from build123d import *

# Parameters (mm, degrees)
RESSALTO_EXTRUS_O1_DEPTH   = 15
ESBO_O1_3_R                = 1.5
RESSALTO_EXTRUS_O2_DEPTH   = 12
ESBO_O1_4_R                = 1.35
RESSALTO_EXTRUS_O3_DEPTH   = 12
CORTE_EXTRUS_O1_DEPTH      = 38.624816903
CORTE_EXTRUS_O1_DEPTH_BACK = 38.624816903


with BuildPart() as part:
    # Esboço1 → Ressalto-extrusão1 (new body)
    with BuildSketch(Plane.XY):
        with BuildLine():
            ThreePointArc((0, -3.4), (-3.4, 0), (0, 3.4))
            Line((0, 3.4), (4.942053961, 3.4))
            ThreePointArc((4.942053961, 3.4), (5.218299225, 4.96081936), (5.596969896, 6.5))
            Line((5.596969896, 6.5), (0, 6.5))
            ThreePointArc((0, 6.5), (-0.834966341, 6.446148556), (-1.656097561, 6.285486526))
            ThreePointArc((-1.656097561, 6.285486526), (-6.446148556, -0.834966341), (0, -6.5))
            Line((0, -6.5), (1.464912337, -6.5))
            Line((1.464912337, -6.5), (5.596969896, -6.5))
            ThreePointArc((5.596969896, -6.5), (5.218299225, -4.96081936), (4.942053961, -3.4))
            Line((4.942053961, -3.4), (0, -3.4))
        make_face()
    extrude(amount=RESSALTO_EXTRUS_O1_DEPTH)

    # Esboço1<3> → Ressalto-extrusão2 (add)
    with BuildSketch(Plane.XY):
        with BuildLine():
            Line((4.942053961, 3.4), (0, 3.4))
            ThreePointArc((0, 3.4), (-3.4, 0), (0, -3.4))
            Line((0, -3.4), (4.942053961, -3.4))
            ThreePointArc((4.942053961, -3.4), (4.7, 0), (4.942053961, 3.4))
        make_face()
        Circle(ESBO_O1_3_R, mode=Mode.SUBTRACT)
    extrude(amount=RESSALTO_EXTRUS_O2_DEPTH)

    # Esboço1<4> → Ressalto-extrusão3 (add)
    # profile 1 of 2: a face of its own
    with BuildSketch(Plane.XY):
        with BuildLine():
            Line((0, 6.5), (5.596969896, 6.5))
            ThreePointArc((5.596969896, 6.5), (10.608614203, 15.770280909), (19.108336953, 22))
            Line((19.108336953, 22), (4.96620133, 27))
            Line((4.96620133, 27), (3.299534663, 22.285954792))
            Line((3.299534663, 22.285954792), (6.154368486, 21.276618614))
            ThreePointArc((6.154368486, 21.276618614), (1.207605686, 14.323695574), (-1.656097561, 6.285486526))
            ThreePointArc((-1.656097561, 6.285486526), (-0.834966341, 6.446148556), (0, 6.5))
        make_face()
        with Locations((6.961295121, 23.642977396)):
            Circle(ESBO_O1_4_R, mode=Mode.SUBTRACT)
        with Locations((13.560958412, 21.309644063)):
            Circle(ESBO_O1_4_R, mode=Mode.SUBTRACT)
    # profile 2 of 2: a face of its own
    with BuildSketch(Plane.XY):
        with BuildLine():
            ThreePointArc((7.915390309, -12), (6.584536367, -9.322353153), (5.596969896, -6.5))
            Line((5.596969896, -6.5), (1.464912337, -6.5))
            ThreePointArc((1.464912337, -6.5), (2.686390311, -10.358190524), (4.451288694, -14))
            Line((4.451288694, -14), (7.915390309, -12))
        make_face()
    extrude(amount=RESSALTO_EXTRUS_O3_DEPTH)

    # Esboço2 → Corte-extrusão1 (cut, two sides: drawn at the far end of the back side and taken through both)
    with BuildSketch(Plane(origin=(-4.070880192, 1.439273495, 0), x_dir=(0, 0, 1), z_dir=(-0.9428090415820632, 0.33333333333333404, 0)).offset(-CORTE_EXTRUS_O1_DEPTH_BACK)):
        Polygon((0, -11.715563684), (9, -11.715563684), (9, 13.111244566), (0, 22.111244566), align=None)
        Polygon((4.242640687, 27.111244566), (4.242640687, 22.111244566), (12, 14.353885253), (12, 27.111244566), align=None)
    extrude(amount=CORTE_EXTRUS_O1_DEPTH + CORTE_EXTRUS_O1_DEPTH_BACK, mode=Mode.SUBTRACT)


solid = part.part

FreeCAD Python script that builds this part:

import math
import FreeCAD as App
import Part
import Sketcher
from FreeCAD import Vector
Q = App.Units.Quantity


def add_polygon(sketch, points):
    """Adds a closed chain of lines whose ends are joined by coincident constraints."""
    first, n = sketch.GeometryCount, len(points)
    for a, b in zip(points, points[1:] + points[:1]):
        sketch.addGeometry(Part.LineSegment(App.Vector(*a, 0), App.Vector(*b, 0)), False)
    for i in range(n):
        sketch.addConstraint(Sketcher.Constraint("Coincident", first + i, 2, first + (i + 1) % n, 1))

doc = App.newDocument("Part")
params = doc.addObject("Spreadsheet::Sheet", "Params")
for row, (alias, value) in enumerate([
    ("sketch1_radius", "24 mm"),
    ("sketch1_radius2", "3.4 mm"),
    ("sketch1_radius3", "6.5 mm"),
    ("pad1_length", "15 mm"),
    ("sketch2_diameter", "3 mm"),
    ("sketch2_radius", "24 mm"),
    ("sketch2_radius2", "3.4 mm"),
    ("pad2_length", "12 mm"),
    ("sketch3_radius", "24 mm"),
    ("sketch3_radius2", "31 mm"),
    ("sketch3_radius3", "28 mm"),
    ("sketch3_diameter", "2.7 mm"),
    ("sketch3_radius4", "6.5 mm"),
    ("pad3_length", "12 mm"),
    ("sketch4_width", "9 mm"),
    ("sketch4_height", "5 mm"),
], start=1):
    params.set(f"A{row}", alias)
    params.set(f"B{row}", "=" + value)
    params.setAlias(f"B{row}", alias)

body = doc.addObject("PartDesign::Body", "Body")

sketch1 = body.newObject("Sketcher::SketchObject", "Sketch")
sketch1.AttachmentSupport = (doc.getObject("XY_Plane"), [""])
sketch1.MapMode = "FlatFace"
sketch1.addGeometry([
    Part.ArcOfCircle(Part.Circle(Vector(0, 0, 0), Vector(0, 0, 1), 3.4), math.radians(90), math.radians(270)),
    Part.LineSegment(Vector(0, 3.4, 0), Vector(4.9, 3.4, 0)),
    Part.ArcOfCircle(Part.Circle(Vector(28.7, 0, 0), Vector(0, 0, 1), 24), math.radians(164.29), math.radians(171.86)),
    Part.LineSegment(Vector(5.6, 6.5, 0), Vector(0, 6.5, 0)),
    Part.ArcOfCircle(Part.Circle(Vector(0, 0, 0), Vector(0, 0, 1), 6.5), math.radians(90), math.radians(104.76)),
    Part.ArcOfCircle(Part.Circle(Vector(0, 0, 0), Vector(0, 0, 1), 6.5), math.radians(105), math.radians(270)),
    Part.LineSegment(Vector(0, -6.5, 0), Vector(5.6, -6.5, 0)),
    Part.ArcOfCircle(Part.Circle(Vector(28.7, 0, 0), Vector(0, 0, 1), 24), math.radians(-171.86), math.radians(-164.29)),
    Part.LineSegment(Vector(4.9, -3.4, 0), Vector(0, -3.4, 0)),
], False)
sketch1.addConstraint([
    Sketcher.Constraint("Tangent", 0, 1, 1, 1),
    Sketcher.Constraint("Coincident", 1, 2, 2, 2),
    Sketcher.Constraint("Coincident", 2, 1, 3, 1),
    Sketcher.Constraint("Tangent", 3, 2, 4, 1),
    Sketcher.Constraint("Tangent", 4, 2, 5, 1),
    Sketcher.Constraint("Tangent", 5, 2, 6, 1),
    Sketcher.Constraint("Coincident", 6, 2, 7, 2),
    Sketcher.Constraint("Coincident", 7, 1, 8, 1),
    Sketcher.Constraint("Tangent", 8, 2, 0, 2),
    Sketcher.Constraint("Horizontal", 1),
    Sketcher.Constraint("Horizontal", 3),
    Sketcher.Constraint("Horizontal", 6),
    Sketcher.Constraint("Horizontal", 8),
    Sketcher.Constraint("Coincident", 0, 3, -1, 1),
    Sketcher.Constraint("Coincident", 4, 3, -1, 1),
    Sketcher.Constraint("Coincident", 7, 3, 2, 3),
    Sketcher.Constraint("Equal", 4, 5),
    Sketcher.Constraint("Equal", 2, 7),
    Sketcher.Constraint("PointOnObject", 2, 3, -1),
    Sketcher.Constraint("Radius", 2, 24.0),
    Sketcher.Constraint("Radius", 0, 3.4),
    Sketcher.Constraint("Radius", 4, 6.5),
    Sketcher.Constraint("DistanceX", -1, 1, 2, 3, 28.7),
    Sketcher.Constraint("DistanceX", 4, 2, -1, 1, 1.656098),
])
sketch1.setExpression("Constraints[19]", "Params.sketch1_radius")
sketch1.setExpression("Constraints[20]", "Params.sketch1_radius2")
sketch1.setExpression("Constraints[21]", "Params.sketch1_radius3")
pad1 = body.newObject("PartDesign::Pad", "Pad")
pad1.Profile = sketch1
pad1.setExpression("Length", "Params.pad1_length")

sketch2 = body.newObject("Sketcher::SketchObject", "Sketch001")
sketch2.AttachmentSupport = (doc.getObject("XY_Plane"), [""])
sketch2.MapMode = "FlatFace"
sketch2.addGeometry([
    Part.LineSegment(Vector(4.9, 3.4, 0), Vector(0, 3.4, 0)),
    Part.ArcOfCircle(Part.Circle(Vector(0, 0, 0), Vector(0, 0, 1), 3.4), math.radians(90), math.radians(270)),
    Part.LineSegment(Vector(0, -3.4, 0), Vector(4.9, -3.4, 0)),
    Part.ArcOfCircle(Part.Circle(Vector(28.7, 0, 0), Vector(0, 0, 1), 24), math.radians(171.86), math.radians(188.14)),
    Part.Circle(Vector(0, 0, 0), Vector(0, 0, 1), 1.5),
], False)
sketch2.addConstraint([
    Sketcher.Constraint("Tangent", 0, 2, 1, 1),
    Sketcher.Constraint("Tangent", 1, 2, 2, 1),
    Sketcher.Constraint("Coincident", 2, 2, 3, 2),
    Sketcher.Constraint("Coincident", 3, 1, 0, 1),
    Sketcher.Constraint("Horizontal", 0),
    Sketcher.Constraint("Horizontal", 2),
    Sketcher.Constraint("Coincident", 1, 3, -1, 1),
    Sketcher.Constraint("Coincident", 4, 3, -1, 1),
    Sketcher.Constraint("PointOnObject", 3, 3, -1),
    Sketcher.Constraint("Diameter", 4, 3.0),
    Sketcher.Constraint("Radius", 3, 24.0),
    Sketcher.Constraint("Radius", 1, 3.4),
    Sketcher.Constraint("DistanceX", -1, 1, 3, 3, 28.7),
])
sketch2.setExpression("Constraints[9]", "Params.sketch2_diameter")
sketch2.setExpression("Constraints[10]", "Params.sketch2_radius")
sketch2.setExpression("Constraints[11]", "Params.sketch2_radius2")
pad2 = body.newObject("PartDesign::Pad", "Pad001")
pad2.Profile = sketch2
pad2.setExpression("Length", "Params.pad2_length")

sketch3 = body.newObject("Sketcher::SketchObject", "Sketch002")
sketch3.AttachmentSupport = (doc.getObject("XY_Plane"), [""])
sketch3.MapMode = "FlatFace"
sketch3.addGeometry([
    Part.LineSegment(Vector(0, 6.5, 0), Vector(5.6, 6.5, 0)),
    Part.ArcOfCircle(Part.Circle(Vector(28.7, 0, 0), Vector(0, 0, 1), 24), math.radians(114), math.radians(164)),
    Part.LineSegment(Vector(19.1, 22, 0), Vector(5, 27, 0)),
    Part.LineSegment(Vector(5, 27, 0), Vector(3.3, 22.3, 0)),
    Part.LineSegment(Vector(3.3, 22.3, 0), Vector(6.2, 21.3, 0)),
    Part.ArcOfCircle(Part.Circle(Vector(28.7, 0, 0), Vector(0, 0, 1), 31), math.radians(137), math.radians(168)),
    Part.ArcOfCircle(Part.Circle(Vector(0, 0, 0), Vector(0, 0, 1), 6.5), math.radians(90), math.radians(104.76)),
    Part.Circle(Vector(13.6, 21.3, 0), Vector(0, 0, 1), 1.4),
    Part.Circle(Vector(7, 23.6, 0), Vector(0, 0, 1), 1.4),
    Part.ArcOfCircle(Part.Circle(Vector(28.7, 0, 0), Vector(0, 0, 1), 24), math.radians(-164.29), math.radians(-150)),
    Part.LineSegment(Vector(5.6, -6.5, 0), Vector(1.5, -6.5, 0)),
    Part.ArcOfCircle(Part.Circle(Vector(28.7, 0, 0), Vector(0, 0, 1), 28), math.radians(-166.58), math.radians(-150)),
    Part.LineSegment(Vector(4.5, -14, 0), Vector(7.9, -12, 0)),
], False)
sketch3.addConstraint([
    Sketcher.Constraint("Coincident", 0, 2, 1, 2),
    Sketcher.Constraint("Coincident", 1, 1, 2, 1),
    Sketcher.Constraint("Coincident", 2, 2, 3, 1),
    Sketcher.Constraint("Coincident", 3, 2, 4, 1),
    Sketcher.Constraint("Coincident", 4, 2, 5, 1),
    Sketcher.Constraint("Coincident", 5, 2, 6, 2),
    Sketcher.Constraint("Tangent", 6, 1, 0, 1),
    Sketcher.Constraint("Coincident", 9, 1, 10, 1),
    Sketcher.Constraint("Coincident", 10, 2, 11, 1),
    Sketcher.Constraint("Coincident", 11, 2, 12, 1),
    Sketcher.Constraint("Coincident", 12, 2, 9, 2),
    Sketcher.Constraint("Horizontal", 0),
    Sketcher.Constraint("Horizontal", 10),
    Sketcher.Constraint("Coincident", 6, 3, -1, 1),
    Sketcher.Constraint("Coincident", 5, 3, 1, 3),
    Sketcher.Constraint("Coincident", 9, 3, 1, 3),
    Sketcher.Constraint("Coincident", 11, 3, 1, 3),
    Sketcher.Constraint("Equal", 7, 8),
    Sketcher.Constraint("Equal", 1, 9),
    Sketcher.Constraint("Symmetric", 0, 2, 9, 1, -1),
    Sketcher.Constraint("Perpendicular", 2, 3),
    Sketcher.Constraint("Perpendicular", 3, 4),
    Sketcher.Constraint("Radius", 1, 24.0),
    Sketcher.Constraint("Radius", 5, 31.0),
    Sketcher.Constraint("Radius", 11, 28.0),
    Sketcher.Constraint("Diameter", 7, 2.7),
    Sketcher.Constraint("Radius", 6, 6.5),
    Sketcher.Constraint("Angle", 12, Q("30 deg")),
    Sketcher.Constraint("Distance", 2, 15.0),
    Sketcher.Constraint("Distance", 3, 5.0),
    Sketcher.Constraint("DistanceY", -1, 1, 1, 1, 22.0),
    Sketcher.Constraint("DistanceY", -1, 1, 2, 2, 27.0),
    Sketcher.Constraint("DistanceY", 11, 2, -1, 1, 14.0),
    Sketcher.Constraint("DistanceX", -1, 1, 1, 3, 28.7),
    Sketcher.Constraint("DistanceX", -1, 1, 7, 3, 13.560958),
    Sketcher.Constraint("DistanceX", 8, 3, 1, 1, 12.147042),
    Sketcher.Constraint("DistanceY", 7, 3, 3, 2, 0.976311),
    Sketcher.Constraint("DistanceY", 4, 2, 8, 3, 2.366359),
])
sketch3.setExpression("Constraints[22]", "Params.sketch3_radius")
sketch3.setExpression("Constraints[23]", "Params.sketch3_radius2")
sketch3.setExpression("Constraints[24]", "Params.sketch3_radius3")
sketch3.setExpression("Constraints[25]", "Params.sketch3_diameter")
sketch3.setExpression("Constraints[26]", "Params.sketch3_radius4")
pad3 = body.newObject("PartDesign::Pad", "Pad002")
pad3.Profile = sketch3
pad3.setExpression("Length", "Params.pad3_length")

sketch4 = body.newObject("Sketcher::SketchObject", "Sketch003")
sketch4.Placement = App.Placement(Vector(-4.07088, 1.439273, 0), App.Rotation(Vector(0, 0, 1), Vector(0.333333333, 0.942809042, 0), Vector(-0.942809042, 0.333333333, 0), "ZXY"))
add_polygon(sketch4, [(0, -12), (9, -12), (9, 13), (0, 22)])
add_polygon(sketch4, [(4, 27), (4, 22), (12, 14), (12, 27)])
sketch4.addConstraint([
    Sketcher.Constraint("Horizontal", 0),
    Sketcher.Constraint("Vertical", 1),
    Sketcher.Constraint("Vertical", 3),
    Sketcher.Constraint("Vertical", 4),
    Sketcher.Constraint("Vertical", 6),
    Sketcher.Constraint("Horizontal", 7),
    Sketcher.Constraint("PointOnObject", 2, 2, -2),
    Sketcher.Constraint("Parallel", 2, 5),
    Sketcher.Constraint("Horizontal", 2, 2, 4, 2),
    Sketcher.Constraint("DistanceX", 0, 1, 0, 2, 9.0),
    Sketcher.Constraint("DistanceY", 4, 2, 4, 1, 5.0),
    Sketcher.Constraint("Angle", 2, Q("135 deg")),
    Sketcher.Constraint("DistanceX", -1, 1, 5, 2, 12.0),
    Sketcher.Constraint("DistanceX", 7, 2, 7, 1, 7.757359),
    Sketcher.Constraint("DistanceY", 1, 1, 1, 2, 24.826808),
    Sketcher.Constraint("DistanceY", 0, 2, -1, 1, 11.715564),
])
sketch4.setExpression("Constraints[17]", "Params.sketch4_width")
sketch4.setExpression("Constraints[18]", "Params.sketch4_height")
pocket1 = body.newObject("PartDesign::Pocket", "Pocket")
pocket1.Profile = sketch4
pocket1.Type = "ThroughAll"
pocket1.Midplane = True

doc.recompute()
